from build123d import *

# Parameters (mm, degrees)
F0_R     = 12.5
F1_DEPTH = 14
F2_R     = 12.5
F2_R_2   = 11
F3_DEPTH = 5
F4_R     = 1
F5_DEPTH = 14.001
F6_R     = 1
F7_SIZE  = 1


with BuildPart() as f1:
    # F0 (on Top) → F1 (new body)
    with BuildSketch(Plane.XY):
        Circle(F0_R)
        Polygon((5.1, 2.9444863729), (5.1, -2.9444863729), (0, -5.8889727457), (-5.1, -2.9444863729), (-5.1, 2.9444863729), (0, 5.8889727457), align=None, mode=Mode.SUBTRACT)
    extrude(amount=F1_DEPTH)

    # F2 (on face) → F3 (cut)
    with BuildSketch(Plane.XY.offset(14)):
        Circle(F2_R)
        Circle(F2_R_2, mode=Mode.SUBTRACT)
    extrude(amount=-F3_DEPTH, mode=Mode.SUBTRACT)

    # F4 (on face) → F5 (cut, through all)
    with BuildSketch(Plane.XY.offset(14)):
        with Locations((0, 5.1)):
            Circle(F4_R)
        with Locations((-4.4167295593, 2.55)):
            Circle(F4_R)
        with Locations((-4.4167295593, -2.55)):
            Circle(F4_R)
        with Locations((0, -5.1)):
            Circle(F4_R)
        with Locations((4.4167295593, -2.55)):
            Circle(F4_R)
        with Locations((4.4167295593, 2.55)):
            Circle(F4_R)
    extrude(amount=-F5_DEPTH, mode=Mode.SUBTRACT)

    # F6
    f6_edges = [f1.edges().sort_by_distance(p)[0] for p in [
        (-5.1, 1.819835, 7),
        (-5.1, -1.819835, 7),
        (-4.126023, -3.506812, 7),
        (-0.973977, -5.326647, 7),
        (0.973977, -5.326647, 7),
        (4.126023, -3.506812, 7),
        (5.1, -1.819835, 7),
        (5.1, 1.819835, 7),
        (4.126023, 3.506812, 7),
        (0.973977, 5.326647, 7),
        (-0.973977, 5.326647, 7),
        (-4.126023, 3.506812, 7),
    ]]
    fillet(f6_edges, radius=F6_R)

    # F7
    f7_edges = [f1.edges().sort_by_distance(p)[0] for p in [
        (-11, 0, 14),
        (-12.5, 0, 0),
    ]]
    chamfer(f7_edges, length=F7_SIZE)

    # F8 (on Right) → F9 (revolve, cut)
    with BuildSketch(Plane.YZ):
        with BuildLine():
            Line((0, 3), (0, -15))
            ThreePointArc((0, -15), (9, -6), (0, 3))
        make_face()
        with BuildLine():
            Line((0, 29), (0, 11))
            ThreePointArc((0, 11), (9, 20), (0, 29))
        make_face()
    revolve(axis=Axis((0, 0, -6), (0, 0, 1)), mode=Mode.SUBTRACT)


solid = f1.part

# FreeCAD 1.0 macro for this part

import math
import FreeCAD as App
import Part
import Sketcher

V = App.Vector
Q = App.Units.Quantity


def edges_at(feature, points):
    """Names of the edges that pass closest to the given points."""
    edges = feature.Shape.Edges
    near = lambda p: min(range(len(edges)), key=lambda i: edges[i].distToShape(Part.Vertex(*p))[0])
    return sorted({f"Edge{near(p) + 1}" for p in points})

doc = App.newDocument("Part")
body = doc.addObject("PartDesign::Body", "Body")

sketch1 = body.newObject("Sketcher::SketchObject", "Sketch")
sketch1.AttachmentSupport = (doc.getObject("XY_Plane"), [""])
sketch1.MapMode = "FlatFace"
sketch1.addGeometry(Part.Circle(V(0, 0, 0), V(0, 0, 1), 12), False)
sketch1.addGeometry(Part.LineSegment(V(0, 6, 0), V(5, 3, 0)), False)
sketch1.addGeometry(Part.LineSegment(V(5, 3, 0), V(5, -3, 0)), False)
sketch1.addGeometry(Part.LineSegment(V(5, -3, 0), V(0, -6, 0)), False)
sketch1.addGeometry(Part.LineSegment(V(0, -6, 0), V(-5, -3, 0)), False)
sketch1.addGeometry(Part.LineSegment(V(-5, -3, 0), V(-5, 3, 0)), False)
sketch1.addGeometry(Part.LineSegment(V(-5, 3, 0), V(0, 6, 0)), False)
sketch1.addConstraint(Sketcher.Constraint("Coincident", 1, 2, 2, 1))
sketch1.addConstraint(Sketcher.Constraint("Coincident", 2, 2, 3, 1))
sketch1.addConstraint(Sketcher.Constraint("Coincident", 3, 2, 4, 1))
sketch1.addConstraint(Sketcher.Constraint("Coincident", 4, 2, 5, 1))
sketch1.addConstraint(Sketcher.Constraint("Coincident", 5, 2, 6, 1))
sketch1.addConstraint(Sketcher.Constraint("Coincident", 6, 2, 1, 1))
sketch1.addConstraint(Sketcher.Constraint("Vertical", 2))
sketch1.addConstraint(Sketcher.Constraint("Vertical", 5))
sketch1.addConstraint(Sketcher.Constraint("Coincident", 0, 3, -1, 1))
sketch1.addConstraint(Sketcher.Constraint("Symmetric", 1, 2, 4, 2, -1, 1))
sketch1.addConstraint(Sketcher.Constraint("Symmetric", 3, 2, 6, 2, -1, 1))
sketch1.addConstraint(Sketcher.Constraint("PointOnObject", 3, 2, -2))
sketch1.addConstraint(Sketcher.Constraint("Parallel", 3, 6))
sketch1.addConstraint(Sketcher.Constraint("Horizontal", 2, 2, 4, 2))
sketch1.addConstraint(Sketcher.Constraint("Diameter", 0, Q("25 mm")))
sketch1.addConstraint(Sketcher.Constraint("Angle", 1, Q("-30 deg")))
sketch1.addConstraint(Sketcher.Constraint("DistanceX", -1, 1, 1, 2, Q("5.1 mm")))
sketch1.addConstraint(Sketcher.Constraint("DistanceY", 2, 2, 2, 1, Q("5.888973 mm")))
pad1 = body.newObject("PartDesign::Pad", "Pad")
pad1.Profile = sketch1
pad1.Length = 14

sketch2 = body.newObject("Sketcher::SketchObject", "Sketch001")
sketch2.AttachmentSupport = (doc.getObject("XY_Plane"), [""])
sketch2.MapMode = "FlatFace"
sketch2.AttachmentOffset = App.Placement(V(0, 0, 14), App.Rotation())
sketch2.addGeometry(Part.Circle(V(0, 0, 0), V(0, 0, 1), 12), False)
sketch2.addGeometry(Part.Circle(V(0, 0, 0), V(0, 0, 1), 11), False)
sketch2.addConstraint(Sketcher.Constraint("Coincident", 0, 3, -1, 1))
sketch2.addConstraint(Sketcher.Constraint("Coincident", 1, 3, -1, 1))
sketch2.addConstraint(Sketcher.Constraint("Diameter", 0, Q("25 mm")))
sketch2.addConstraint(Sketcher.Constraint("Diameter", 1, Q("22 mm")))
pocket1 = body.newObject("PartDesign::Pocket", "Pocket")
pocket1.Profile = sketch2
pocket1.Length = 5

sketch3 = body.newObject("Sketcher::SketchObject", "Sketch002")
sketch3.AttachmentSupport = (doc.getObject("XY_Plane"), [""])
sketch3.MapMode = "FlatFace"
sketch3.AttachmentOffset = App.Placement(V(0, 0, 14), App.Rotation())
sketch3.addGeometry(Part.Circle(V(0, 5.1, 0), V(0, 0, 1), 1), False)
sketch3.addGeometry(Part.Circle(V(-4.4, 2.5, 0), V(0, 0, 1), 1), False)
sketch3.addGeometry(Part.Circle(V(-4.4, -2.5, 0), V(0, 0, 1), 1), False)
sketch3.addGeometry(Part.Circle(V(0, -5.1, 0), V(0, 0, 1), 1), False)
sketch3.addGeometry(Part.Circle(V(4.4, -2.5, 0), V(0, 0, 1), 1), False)
sketch3.addGeometry(Part.Circle(V(4.4, 2.5, 0), V(0, 0, 1), 1), False)
sketch3.addConstraint(Sketcher.Constraint("Equal", 0, 1))
sketch3.addConstraint(Sketcher.Constraint("Equal", 1, 2))
sketch3.addConstraint(Sketcher.Constraint("Equal", 2, 3))
sketch3.addConstraint(Sketcher.Constraint("Equal", 3, 4))
sketch3.addConstraint(Sketcher.Constraint("Equal", 4, 5))
sketch3.addConstraint(Sketcher.Constraint("Symmetric", 0, 3, 3, 3, -1, 1))
sketch3.addConstraint(Sketcher.Constraint("Symmetric", 1, 3, 4, 3, -1, 1))
sketch3.addConstraint(Sketcher.Constraint("Symmetric", 2, 3, 5, 3, -1, 1))
sketch3.addConstraint(Sketcher.Constraint("Symmetric", 2, 3, 4, 3, -2))
sketch3.addConstraint(Sketcher.Constraint("PointOnObject", 0, 3, -2))
sketch3.addConstraint(Sketcher.Constraint("Diameter", 0, Q("2 mm")))
sketch3.addConstraint(Sketcher.Constraint("DistanceY", -1, 1, 0, 3, Q("5.1 mm")))
sketch3.addConstraint(Sketcher.Constraint("DistanceY", 2, 3, 1, 3, Q("5.1 mm")))
sketch3.addConstraint(Sketcher.Constraint("DistanceX", 1, 3, -1, 1, Q("4.41673 mm")))
pocket2 = body.newObject("PartDesign::Pocket", "Pocket001")
pocket2.Profile = sketch3
pocket2.Type = "ThroughAll"
doc.recompute()

fillet = body.newObject("PartDesign::Fillet", "Fillet")
fillet.Base = (pocket2, edges_at(pocket2, [
    (-5.1, 1.82, 7),
    (-5.1, -1.82, 7),
    (-4.126, -3.507, 7),
    (-0.974, -5.327, 7),
    (0.974, -5.327, 7),
    (4.126, -3.507, 7),
    (5.1, -1.82, 7),
    (5.1, 1.82, 7),
    (4.126, 3.507, 7),
    (0.974, 5.327, 7),
    (-0.974, 5.327, 7),
    (-4.126, 3.507, 7),
]))
fillet.Radius = 1
doc.recompute()

chamfer = body.newObject("PartDesign::Chamfer", "Chamfer")
chamfer.Base = (fillet, edges_at(fillet, [(-11, 0, 14), (-12.5, 0, 0)]))
chamfer.Size = 1

sketch4 = body.newObject("Sketcher::SketchObject", "Sketch003")
sketch4.AttachmentSupport = (doc.getObject("YZ_Plane"), [""])
sketch4.MapMode = "FlatFace"
sketch4.addGeometry(Part.LineSegment(V(0, 3, 0), V(0, -15, 0)), False)
sketch4.addGeometry(Part.ArcOfCircle(Part.Circle(V(0, -6, 0), V(0, 0, 1), 9), math.radians(-90), math.radians(90)), False)
sketch4.addGeometry(Part.LineSegment(V(0, 29, 0), V(0, 11, 0)), False)
sketch4.addGeometry(Part.ArcOfCircle(Part.Circle(V(0, 20, 0), V(0, 0, 1), 9), math.radians(-90), math.radians(90)), False)
sketch4.addConstraint(Sketcher.Constraint("Coincident", 0, 1, 1, 2))
sketch4.addConstraint(Sketcher.Constraint("Coincident", 1, 1, 0, 2))
sketch4.addConstraint(Sketcher.Constraint("Coincident", 2, 1, 3, 2))
sketch4.addConstraint(Sketcher.Constraint("Coincident", 3, 1, 2, 2))
sketch4.addConstraint(Sketcher.Constraint("Vertical", 0))
sketch4.addConstraint(Sketcher.Constraint("Vertical", 2))
sketch4.addConstraint(Sketcher.Constraint("Equal", 1, 3))
sketch4.addConstraint(Sketcher.Constraint("PointOnObject", 1, 3, -2))
sketch4.addConstraint(Sketcher.Constraint("PointOnObject", 3, 3, -2))
sketch4.addConstraint(Sketcher.Constraint("PointOnObject", 0, 1, -2))
sketch4.addConstraint(Sketcher.Constraint("PointOnObject", 2, 1, -2))
sketch4.addConstraint(Sketcher.Constraint("Radius", 1, Q("9 mm")))
sketch4.addConstraint(Sketcher.Constraint("DistanceY", 1, 3, -1, 1, Q("6 mm")))
sketch4.addConstraint(Sketcher.Constraint("DistanceY", -1, 1, 3, 3, Q("20 mm")))
groove = body.newObject("PartDesign::Groove", "Groove")
groove.Profile = sketch4
groove.ReferenceAxis = (sketch4, ["V_Axis"])
groove.Angle = 360

doc.recompute()
